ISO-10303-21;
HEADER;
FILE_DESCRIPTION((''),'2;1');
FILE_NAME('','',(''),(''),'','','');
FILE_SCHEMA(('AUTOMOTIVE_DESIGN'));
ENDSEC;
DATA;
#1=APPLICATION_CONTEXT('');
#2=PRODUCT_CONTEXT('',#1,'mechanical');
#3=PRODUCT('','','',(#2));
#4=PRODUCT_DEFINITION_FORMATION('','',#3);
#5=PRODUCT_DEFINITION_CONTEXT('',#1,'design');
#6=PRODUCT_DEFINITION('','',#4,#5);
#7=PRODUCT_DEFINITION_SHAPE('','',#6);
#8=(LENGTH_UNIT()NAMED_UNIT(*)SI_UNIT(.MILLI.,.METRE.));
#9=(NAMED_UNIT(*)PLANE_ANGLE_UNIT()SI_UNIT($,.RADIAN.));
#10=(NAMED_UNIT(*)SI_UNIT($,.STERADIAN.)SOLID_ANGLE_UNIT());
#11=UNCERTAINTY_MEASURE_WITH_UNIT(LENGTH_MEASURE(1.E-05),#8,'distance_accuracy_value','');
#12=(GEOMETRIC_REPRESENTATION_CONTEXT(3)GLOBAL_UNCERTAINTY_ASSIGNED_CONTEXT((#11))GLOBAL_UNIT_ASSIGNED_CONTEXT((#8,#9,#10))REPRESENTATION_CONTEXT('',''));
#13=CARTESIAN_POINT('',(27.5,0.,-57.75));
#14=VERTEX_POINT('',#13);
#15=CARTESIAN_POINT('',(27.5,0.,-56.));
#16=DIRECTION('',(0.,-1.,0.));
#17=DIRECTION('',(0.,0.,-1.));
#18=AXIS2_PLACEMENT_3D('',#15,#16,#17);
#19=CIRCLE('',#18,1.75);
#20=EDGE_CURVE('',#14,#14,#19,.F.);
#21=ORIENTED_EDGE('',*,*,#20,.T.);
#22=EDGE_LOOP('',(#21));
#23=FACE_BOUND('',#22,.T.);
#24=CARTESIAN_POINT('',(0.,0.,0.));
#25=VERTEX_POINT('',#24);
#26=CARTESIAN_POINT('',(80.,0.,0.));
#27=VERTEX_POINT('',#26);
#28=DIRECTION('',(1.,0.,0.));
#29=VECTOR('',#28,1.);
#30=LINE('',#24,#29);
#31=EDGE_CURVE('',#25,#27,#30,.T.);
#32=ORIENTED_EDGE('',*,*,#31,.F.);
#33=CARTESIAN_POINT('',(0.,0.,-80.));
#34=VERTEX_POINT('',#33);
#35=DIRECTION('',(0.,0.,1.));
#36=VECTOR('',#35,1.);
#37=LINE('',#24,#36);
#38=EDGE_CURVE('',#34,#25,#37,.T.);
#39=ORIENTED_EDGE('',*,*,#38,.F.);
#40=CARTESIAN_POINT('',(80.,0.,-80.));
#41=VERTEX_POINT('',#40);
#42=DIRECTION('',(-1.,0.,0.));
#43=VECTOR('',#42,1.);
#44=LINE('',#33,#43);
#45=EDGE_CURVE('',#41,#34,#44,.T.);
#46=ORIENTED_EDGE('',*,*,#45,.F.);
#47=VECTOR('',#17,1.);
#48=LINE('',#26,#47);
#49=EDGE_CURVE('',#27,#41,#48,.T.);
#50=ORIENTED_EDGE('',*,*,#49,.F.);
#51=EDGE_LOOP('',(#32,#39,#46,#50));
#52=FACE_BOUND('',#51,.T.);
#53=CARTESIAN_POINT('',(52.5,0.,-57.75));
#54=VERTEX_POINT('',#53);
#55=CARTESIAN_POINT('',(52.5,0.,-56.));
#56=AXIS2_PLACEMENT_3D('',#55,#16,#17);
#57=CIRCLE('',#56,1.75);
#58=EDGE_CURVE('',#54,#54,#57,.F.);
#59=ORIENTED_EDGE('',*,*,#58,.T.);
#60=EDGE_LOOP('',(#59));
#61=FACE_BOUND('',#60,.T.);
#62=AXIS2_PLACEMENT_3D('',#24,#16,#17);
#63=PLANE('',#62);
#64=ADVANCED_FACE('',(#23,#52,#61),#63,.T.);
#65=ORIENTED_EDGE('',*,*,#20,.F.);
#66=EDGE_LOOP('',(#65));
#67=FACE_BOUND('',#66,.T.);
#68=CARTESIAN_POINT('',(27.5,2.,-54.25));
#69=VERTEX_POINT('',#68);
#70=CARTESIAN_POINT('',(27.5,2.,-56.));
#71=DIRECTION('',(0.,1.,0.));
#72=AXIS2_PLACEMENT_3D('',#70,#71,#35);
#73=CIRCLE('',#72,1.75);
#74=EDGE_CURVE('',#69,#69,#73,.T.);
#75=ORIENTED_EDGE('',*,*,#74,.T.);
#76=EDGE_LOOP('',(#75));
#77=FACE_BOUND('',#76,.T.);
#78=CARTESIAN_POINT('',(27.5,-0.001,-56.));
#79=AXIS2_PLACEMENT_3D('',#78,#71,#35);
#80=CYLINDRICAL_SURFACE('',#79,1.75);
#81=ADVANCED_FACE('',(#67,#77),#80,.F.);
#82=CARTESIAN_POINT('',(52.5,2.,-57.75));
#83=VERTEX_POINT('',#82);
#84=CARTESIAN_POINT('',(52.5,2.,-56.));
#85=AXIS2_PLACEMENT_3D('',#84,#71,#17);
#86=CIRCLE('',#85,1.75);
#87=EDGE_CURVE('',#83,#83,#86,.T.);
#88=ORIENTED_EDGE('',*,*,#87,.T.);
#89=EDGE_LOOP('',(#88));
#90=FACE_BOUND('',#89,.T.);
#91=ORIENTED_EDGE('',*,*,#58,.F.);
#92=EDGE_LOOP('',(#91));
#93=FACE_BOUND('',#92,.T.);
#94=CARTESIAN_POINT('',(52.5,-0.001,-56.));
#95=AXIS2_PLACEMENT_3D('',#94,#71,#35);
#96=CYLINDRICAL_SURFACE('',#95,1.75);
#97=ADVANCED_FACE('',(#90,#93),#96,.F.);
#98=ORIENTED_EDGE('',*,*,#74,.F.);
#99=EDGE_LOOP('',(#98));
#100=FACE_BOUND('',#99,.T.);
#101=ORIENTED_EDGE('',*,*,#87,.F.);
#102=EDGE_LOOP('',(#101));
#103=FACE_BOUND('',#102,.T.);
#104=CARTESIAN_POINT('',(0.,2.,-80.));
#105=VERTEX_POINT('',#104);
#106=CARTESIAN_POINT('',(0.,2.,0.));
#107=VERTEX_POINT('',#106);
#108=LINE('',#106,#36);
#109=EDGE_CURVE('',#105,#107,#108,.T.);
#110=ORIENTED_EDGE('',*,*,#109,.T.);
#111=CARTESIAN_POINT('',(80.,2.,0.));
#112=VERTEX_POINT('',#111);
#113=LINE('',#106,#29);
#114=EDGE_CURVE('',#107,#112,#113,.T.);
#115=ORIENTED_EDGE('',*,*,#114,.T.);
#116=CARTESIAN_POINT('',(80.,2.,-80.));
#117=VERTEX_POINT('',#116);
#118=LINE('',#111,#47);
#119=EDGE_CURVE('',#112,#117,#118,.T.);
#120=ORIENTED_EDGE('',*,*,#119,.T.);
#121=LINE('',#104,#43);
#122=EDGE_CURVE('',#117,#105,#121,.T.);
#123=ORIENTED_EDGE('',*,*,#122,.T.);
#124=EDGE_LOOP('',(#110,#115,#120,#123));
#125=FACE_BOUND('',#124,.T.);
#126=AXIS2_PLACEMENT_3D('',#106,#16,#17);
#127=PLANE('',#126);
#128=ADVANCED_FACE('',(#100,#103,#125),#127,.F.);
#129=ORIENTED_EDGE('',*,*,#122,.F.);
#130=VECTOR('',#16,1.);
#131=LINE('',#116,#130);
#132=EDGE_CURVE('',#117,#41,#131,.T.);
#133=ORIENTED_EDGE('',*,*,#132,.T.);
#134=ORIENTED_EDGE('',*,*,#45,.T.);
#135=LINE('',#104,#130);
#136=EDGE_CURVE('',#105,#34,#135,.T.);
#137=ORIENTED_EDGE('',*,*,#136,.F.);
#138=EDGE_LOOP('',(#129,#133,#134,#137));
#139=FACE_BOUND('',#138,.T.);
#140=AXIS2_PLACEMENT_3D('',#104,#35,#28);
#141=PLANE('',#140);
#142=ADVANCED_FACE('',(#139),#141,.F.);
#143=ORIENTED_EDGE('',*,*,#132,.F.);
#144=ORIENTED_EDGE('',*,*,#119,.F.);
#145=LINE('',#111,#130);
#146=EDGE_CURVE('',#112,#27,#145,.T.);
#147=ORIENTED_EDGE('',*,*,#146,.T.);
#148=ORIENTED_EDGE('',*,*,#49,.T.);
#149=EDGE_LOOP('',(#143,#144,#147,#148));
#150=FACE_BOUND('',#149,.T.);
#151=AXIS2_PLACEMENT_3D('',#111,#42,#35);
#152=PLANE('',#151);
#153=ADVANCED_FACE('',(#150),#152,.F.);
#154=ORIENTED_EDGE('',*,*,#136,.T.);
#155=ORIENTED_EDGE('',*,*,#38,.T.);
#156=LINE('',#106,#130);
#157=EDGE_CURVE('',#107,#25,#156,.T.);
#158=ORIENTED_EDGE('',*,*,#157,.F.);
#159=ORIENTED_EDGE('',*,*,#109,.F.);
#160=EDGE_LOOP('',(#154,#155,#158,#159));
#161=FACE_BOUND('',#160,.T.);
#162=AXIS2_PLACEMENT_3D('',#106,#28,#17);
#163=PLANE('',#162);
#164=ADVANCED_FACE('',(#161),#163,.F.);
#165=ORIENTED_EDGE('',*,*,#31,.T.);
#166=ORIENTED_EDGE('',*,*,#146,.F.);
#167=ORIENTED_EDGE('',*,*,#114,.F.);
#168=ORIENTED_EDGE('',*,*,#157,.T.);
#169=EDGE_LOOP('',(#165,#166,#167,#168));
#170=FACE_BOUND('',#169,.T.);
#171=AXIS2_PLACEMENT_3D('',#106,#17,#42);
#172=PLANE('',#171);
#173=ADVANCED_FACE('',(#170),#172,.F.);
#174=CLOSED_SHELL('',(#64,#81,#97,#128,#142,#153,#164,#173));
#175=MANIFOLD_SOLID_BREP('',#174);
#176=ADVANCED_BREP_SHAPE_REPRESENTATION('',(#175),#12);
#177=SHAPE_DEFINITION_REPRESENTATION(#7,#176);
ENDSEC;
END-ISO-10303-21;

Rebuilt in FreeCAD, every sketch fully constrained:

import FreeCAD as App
import Part
import Sketcher
from FreeCAD import Vector
Q = App.Units.Quantity

doc = App.newDocument("Part")
body = doc.addObject("PartDesign::Body", "Body")

# Sketch on XZ plane
sketch1 = body.newObject("Sketcher::SketchObject", "Sketch")
sketch1.AttachmentSupport = (doc.getObject("XZ_Plane"), [""])
sketch1.MapMode = "FlatFace"
sketch1.addGeometry([
    Part.LineSegment(Vector(0, -80, 0), Vector(0, 0, 0)),
    Part.LineSegment(Vector(0, 0, 0), Vector(80, 0, 0)),
    Part.LineSegment(Vector(80, 0, 0), Vector(80, -80, 0)),
    Part.LineSegment(Vector(80, -80, 0), Vector(0, -80, 0)),
], False)
sketch1.addConstraint([
    Sketcher.Constraint("Coincident", 0, 2, 1, 1),
    Sketcher.Constraint("Coincident", 1, 2, 2, 1),
    Sketcher.Constraint("Coincident", 2, 2, 3, 1),
    Sketcher.Constraint("Coincident", 3, 2, 0, 1),
    Sketcher.Constraint("Vertical", 0),
    Sketcher.Constraint("Horizontal", 1),
    Sketcher.Constraint("Vertical", 2),
    Sketcher.Constraint("Horizontal", 3),
    Sketcher.Constraint("Coincident", 0, 2, -1, 1),
    Sketcher.Constraint("Equal", 3, 0),
    Sketcher.Constraint("DistanceX", 1, 1, 1, 2, Q("80 mm")),
])
pad1 = body.newObject("PartDesign::Pad", "Pad")
pad1.Profile = sketch1
pad1.Length = 2
pad1.Reversed = True

# Sketch on XZ plane
sketch2 = body.newObject("Sketcher::SketchObject", "Sketch001")
sketch2.AttachmentSupport = (doc.getObject("XZ_Plane"), [""])
sketch2.MapMode = "FlatFace"
sketch2.AttachmentOffset = App.Placement(Vector(0, 0, -2), App.Rotation())
sketch2.addGeometry(Part.Circle(Vector(27.5, -56, 0), Vector(0, 0, 1), 1.75), False)
sketch2.addConstraint([
    Sketcher.Constraint("Diameter", 0, Q("3.5 mm")),
    Sketcher.Constraint("DistanceY", 0, 3, -1, 1, Q("56 mm")),
    Sketcher.Constraint("DistanceX", -1, 1, 0, 3, Q("27.5 mm")),
])
pocket1 = body.newObject("PartDesign::Pocket", "Pocket")
pocket1.Profile = sketch2
pocket1.Type = "UpToFirst"
pocket1.Reversed = True

# Sketch on XZ plane
sketch3 = body.newObject("Sketcher::SketchObject", "Sketch002")
sketch3.AttachmentSupport = (doc.getObject("XZ_Plane"), [""])
sketch3.MapMode = "FlatFace"
sketch3.AttachmentOffset = App.Placement(Vector(0, 0, -2), App.Rotation())
sketch3.addGeometry(Part.Circle(Vector(52.5, -56, 0), Vector(0, 0, 1), 1.75), False)
sketch3.addConstraint([
    Sketcher.Constraint("Diameter", 0, Q("3.5 mm")),
    Sketcher.Constraint("DistanceY", 0, 3, -1, 1, Q("56 mm")),
    Sketcher.Constraint("DistanceX", -1, 1, 0, 3, Q("52.5 mm")),
])
pocket2 = body.newObject("PartDesign::Pocket", "Pocket001")
pocket2.Profile = sketch3
pocket2.Type = "UpToFirst"
pocket2.Reversed = True

doc.recompute()
